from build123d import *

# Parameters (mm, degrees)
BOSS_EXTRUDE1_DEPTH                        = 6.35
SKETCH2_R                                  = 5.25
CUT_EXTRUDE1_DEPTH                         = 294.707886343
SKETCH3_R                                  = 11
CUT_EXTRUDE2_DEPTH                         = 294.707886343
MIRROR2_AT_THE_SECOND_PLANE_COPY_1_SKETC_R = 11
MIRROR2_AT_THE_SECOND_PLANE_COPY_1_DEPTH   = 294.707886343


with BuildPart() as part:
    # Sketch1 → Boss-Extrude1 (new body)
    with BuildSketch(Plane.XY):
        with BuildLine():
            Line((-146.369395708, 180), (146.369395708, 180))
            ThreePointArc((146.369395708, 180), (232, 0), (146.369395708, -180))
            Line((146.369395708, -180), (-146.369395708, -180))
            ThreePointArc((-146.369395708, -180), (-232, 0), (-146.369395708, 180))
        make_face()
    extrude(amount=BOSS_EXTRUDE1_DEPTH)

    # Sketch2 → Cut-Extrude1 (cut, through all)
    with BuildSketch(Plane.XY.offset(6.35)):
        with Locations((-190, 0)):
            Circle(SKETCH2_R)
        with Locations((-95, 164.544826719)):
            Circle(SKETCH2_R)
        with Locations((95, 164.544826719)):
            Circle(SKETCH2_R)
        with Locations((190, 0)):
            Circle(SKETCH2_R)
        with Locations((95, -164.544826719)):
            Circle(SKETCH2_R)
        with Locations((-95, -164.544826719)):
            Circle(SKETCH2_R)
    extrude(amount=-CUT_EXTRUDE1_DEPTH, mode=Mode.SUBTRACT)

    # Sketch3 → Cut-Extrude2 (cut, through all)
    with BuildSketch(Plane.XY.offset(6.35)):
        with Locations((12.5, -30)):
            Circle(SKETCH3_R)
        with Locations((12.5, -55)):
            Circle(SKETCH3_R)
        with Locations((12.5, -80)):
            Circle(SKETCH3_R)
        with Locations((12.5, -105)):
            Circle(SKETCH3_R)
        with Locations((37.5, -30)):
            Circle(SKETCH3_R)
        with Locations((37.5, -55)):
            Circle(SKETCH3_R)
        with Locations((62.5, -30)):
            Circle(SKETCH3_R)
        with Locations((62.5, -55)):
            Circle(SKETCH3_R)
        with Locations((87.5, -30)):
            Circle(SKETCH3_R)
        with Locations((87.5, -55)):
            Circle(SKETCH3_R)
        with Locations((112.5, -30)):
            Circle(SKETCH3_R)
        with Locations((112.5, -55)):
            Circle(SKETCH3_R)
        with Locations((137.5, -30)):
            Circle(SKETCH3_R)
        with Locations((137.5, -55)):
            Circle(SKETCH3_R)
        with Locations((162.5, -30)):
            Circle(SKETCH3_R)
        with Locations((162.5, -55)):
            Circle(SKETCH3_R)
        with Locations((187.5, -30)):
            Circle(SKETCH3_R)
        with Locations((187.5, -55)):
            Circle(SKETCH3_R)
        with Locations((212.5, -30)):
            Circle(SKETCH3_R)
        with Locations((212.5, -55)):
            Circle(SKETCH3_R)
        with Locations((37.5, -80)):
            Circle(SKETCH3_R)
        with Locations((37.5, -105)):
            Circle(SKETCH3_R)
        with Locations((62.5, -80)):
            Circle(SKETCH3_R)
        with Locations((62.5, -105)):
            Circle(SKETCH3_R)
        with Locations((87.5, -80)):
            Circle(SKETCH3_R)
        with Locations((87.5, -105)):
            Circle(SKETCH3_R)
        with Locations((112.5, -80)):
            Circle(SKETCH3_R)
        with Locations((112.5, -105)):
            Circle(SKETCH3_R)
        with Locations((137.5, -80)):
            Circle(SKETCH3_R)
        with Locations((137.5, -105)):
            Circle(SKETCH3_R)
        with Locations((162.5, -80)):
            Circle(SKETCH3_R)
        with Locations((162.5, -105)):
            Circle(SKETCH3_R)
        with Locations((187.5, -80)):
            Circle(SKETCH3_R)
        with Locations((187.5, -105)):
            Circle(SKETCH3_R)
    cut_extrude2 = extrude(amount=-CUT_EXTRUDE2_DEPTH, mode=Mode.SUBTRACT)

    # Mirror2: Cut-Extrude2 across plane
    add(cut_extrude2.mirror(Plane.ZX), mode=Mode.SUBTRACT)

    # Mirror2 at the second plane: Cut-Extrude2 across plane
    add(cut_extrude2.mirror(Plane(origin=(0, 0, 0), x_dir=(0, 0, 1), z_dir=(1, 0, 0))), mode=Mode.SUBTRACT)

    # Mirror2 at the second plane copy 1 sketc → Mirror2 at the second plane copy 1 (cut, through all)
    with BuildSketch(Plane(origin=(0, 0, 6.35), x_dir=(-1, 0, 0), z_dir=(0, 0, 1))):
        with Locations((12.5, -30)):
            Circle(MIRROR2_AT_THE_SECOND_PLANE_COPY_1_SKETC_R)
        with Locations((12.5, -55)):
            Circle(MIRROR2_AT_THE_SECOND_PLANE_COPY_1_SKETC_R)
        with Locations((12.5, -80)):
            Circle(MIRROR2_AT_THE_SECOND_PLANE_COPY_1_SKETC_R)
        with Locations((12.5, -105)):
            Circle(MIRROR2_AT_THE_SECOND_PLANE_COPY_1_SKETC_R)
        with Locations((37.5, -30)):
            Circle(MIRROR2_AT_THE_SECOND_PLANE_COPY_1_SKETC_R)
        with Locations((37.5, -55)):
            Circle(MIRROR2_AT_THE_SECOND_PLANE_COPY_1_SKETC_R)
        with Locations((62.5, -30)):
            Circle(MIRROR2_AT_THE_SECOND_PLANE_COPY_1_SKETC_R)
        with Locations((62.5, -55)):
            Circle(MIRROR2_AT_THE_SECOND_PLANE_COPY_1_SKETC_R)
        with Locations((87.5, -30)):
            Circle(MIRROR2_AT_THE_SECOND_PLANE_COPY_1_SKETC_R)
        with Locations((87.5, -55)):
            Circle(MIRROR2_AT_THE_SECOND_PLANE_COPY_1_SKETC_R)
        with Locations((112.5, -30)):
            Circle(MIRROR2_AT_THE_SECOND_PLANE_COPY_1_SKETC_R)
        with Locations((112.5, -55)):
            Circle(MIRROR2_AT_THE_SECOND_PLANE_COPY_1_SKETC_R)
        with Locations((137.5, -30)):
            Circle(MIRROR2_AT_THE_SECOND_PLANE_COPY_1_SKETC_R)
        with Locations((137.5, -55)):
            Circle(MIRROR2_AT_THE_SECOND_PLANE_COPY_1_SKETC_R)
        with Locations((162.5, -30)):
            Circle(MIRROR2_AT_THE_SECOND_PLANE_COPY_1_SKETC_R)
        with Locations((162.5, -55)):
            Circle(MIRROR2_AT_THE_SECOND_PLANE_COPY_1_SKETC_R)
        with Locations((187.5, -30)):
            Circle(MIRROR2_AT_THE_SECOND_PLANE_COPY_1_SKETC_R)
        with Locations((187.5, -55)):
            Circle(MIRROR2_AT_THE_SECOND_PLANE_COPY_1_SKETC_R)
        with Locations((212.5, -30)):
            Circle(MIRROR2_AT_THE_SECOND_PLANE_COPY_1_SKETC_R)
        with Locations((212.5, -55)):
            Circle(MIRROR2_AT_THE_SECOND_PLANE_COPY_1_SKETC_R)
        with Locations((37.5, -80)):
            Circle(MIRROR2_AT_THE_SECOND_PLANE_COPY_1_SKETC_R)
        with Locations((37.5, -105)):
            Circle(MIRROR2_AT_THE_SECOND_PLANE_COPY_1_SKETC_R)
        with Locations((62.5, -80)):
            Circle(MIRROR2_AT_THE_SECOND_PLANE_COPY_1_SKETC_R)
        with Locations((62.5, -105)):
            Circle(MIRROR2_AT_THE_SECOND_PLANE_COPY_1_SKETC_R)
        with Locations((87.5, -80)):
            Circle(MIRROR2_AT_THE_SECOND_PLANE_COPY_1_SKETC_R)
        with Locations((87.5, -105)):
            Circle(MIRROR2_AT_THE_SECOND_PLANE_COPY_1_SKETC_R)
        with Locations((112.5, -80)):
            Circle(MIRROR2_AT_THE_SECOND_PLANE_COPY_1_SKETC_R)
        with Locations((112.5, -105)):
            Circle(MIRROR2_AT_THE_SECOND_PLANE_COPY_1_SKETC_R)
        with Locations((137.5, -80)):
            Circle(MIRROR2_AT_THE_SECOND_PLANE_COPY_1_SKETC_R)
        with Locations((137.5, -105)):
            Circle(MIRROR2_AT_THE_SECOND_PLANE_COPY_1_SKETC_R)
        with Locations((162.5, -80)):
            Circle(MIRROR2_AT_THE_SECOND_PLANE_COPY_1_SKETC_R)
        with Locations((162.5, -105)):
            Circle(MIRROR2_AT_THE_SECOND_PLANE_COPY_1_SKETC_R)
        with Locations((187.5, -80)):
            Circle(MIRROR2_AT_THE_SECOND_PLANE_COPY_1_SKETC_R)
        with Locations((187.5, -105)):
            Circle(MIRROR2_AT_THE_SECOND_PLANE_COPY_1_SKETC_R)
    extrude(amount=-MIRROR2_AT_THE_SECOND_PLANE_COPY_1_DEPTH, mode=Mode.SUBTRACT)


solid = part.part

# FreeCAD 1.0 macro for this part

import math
import FreeCAD as App
import Part
import Sketcher
from FreeCAD import Vector
Q = App.Units.Quantity

doc = App.newDocument("Part")
body = doc.addObject("PartDesign::Body", "Body")

# Sketch on XY plane
sketch1 = body.newObject("Sketcher::SketchObject", "Sketch")
sketch1.AttachmentSupport = (doc.getObject("XY_Plane"), [""])
sketch1.MapMode = "FlatFace"
sketch1.addGeometry([
    Part.LineSegment(Vector(146, 180, 0), Vector(-146, 180, 0)),
    Part.ArcOfCircle(Part.Circle(Vector(0, 0, 0), Vector(0, 0, 1), 232), math.radians(129), math.radians(231)),
    Part.LineSegment(Vector(-146, -180, 0), Vector(146, -180, 0)),
    Part.ArcOfCircle(Part.Circle(Vector(0, 0, 0), Vector(0, 0, 1), 232), math.radians(-51), math.radians(51)),
], False)
sketch1.addConstraint([
    Sketcher.Constraint("Coincident", 0, 2, 1, 1),
    Sketcher.Constraint("Coincident", 1, 2, 2, 1),
    Sketcher.Constraint("Coincident", 2, 2, 3, 1),
    Sketcher.Constraint("Coincident", 3, 2, 0, 1),
    Sketcher.Constraint("Horizontal", 0),
    Sketcher.Constraint("Horizontal", 2),
    Sketcher.Constraint("Coincident", 1, 3, -1, 1),
    Sketcher.Constraint("Coincident", 3, 3, -1, 1),
    Sketcher.Constraint("Equal", 1, 3),
    Sketcher.Constraint("Vertical", 0, 2, 1, 2),
    Sketcher.Constraint("Radius", 1, Q("232 mm")),
    Sketcher.Constraint("DistanceY", -1, 1, 0, 2, Q("180 mm")),
])
pad1 = body.newObject("PartDesign::Pad", "Pad")
pad1.Profile = sketch1
pad1.Length = 6.35

# Sketch on XY plane
sketch2 = body.newObject("Sketcher::SketchObject", "Sketch001")
sketch2.AttachmentSupport = (doc.getObject("XY_Plane"), [""])
sketch2.MapMode = "FlatFace"
sketch2.AttachmentOffset = App.Placement(Vector(0, 0, 6.35), App.Rotation())
sketch2.addGeometry([
    Part.Circle(Vector(-190, 0, 0), Vector(0, 0, 1), 5),  # 0
    Part.Circle(Vector(-95, 165, 0), Vector(0, 0, 1), 5),  # 1
    Part.Circle(Vector(95, 165, 0), Vector(0, 0, 1), 5),  # 2
    Part.Circle(Vector(190, 0, 0), Vector(0, 0, 1), 5),  # 3
    Part.Circle(Vector(95, -165, 0), Vector(0, 0, 1), 5),  # 4
    Part.Circle(Vector(-95, -165, 0), Vector(0, 0, 1), 5),  # 5
], False)
sketch2.addConstraint([
    Sketcher.Constraint("Equal", 0, 1),
    Sketcher.Constraint("Equal", 1, 2),
    Sketcher.Constraint("Equal", 2, 3),
    Sketcher.Constraint("Equal", 3, 4),
    Sketcher.Constraint("Equal", 4, 5),
    Sketcher.Constraint("Symmetric", 0, 3, 3, 3, -1, 1),
    Sketcher.Constraint("Symmetric", 1, 3, 4, 3, -1, 1),
    Sketcher.Constraint("Symmetric", 2, 3, 5, 3, -1, 1),
    Sketcher.Constraint("Symmetric", 1, 3, 2, 3, -2),
    Sketcher.Constraint("PointOnObject", 0, 3, -1),
    Sketcher.Constraint("Diameter", 0, Q("10.5 mm")),
    Sketcher.Constraint("DistanceX", 0, 3, -1, 1, Q("190 mm")),
    Sketcher.Constraint("DistanceX", 1, 3, -1, 1, Q("95 mm")),
    Sketcher.Constraint("DistanceY", -1, 1, 1, 3, Q("164.544827 mm")),
])
pocket1 = body.newObject("PartDesign::Pocket", "Pocket")
pocket1.Profile = sketch2
pocket1.Type = "ThroughAll"

# Sketch on XY plane
sketch3 = body.newObject("Sketcher::SketchObject", "Sketch002")
sketch3.AttachmentSupport = (doc.getObject("XY_Plane"), [""])
sketch3.MapMode = "FlatFace"
sketch3.AttachmentOffset = App.Placement(Vector(0, 0, 6.35), App.Rotation())
sketch3.addGeometry([
    Part.Circle(Vector(12, -30, 0), Vector(0, 0, 1), 11),  # 0
    Part.Circle(Vector(12, -55, 0), Vector(0, 0, 1), 11),  # 1
    Part.Circle(Vector(12, -80, 0), Vector(0, 0, 1), 11),  # 2
    Part.Circle(Vector(12, -105, 0), Vector(0, 0, 1), 11),  # 3
    Part.Circle(Vector(38, -30, 0), Vector(0, 0, 1), 11),  # 4
    Part.Circle(Vector(38, -55, 0), Vector(0, 0, 1), 11),  # 5
    Part.Circle(Vector(62, -30, 0), Vector(0, 0, 1), 11),  # 6
    Part.Circle(Vector(62, -55, 0), Vector(0, 0, 1), 11),  # 7
    Part.Circle(Vector(88, -30, 0), Vector(0, 0, 1), 11),  # 8
    Part.Circle(Vector(88, -55, 0), Vector(0, 0, 1), 11),  # 9
    Part.Circle(Vector(112, -30, 0), Vector(0, 0, 1), 11),  # 10
    Part.Circle(Vector(112, -55, 0), Vector(0, 0, 1), 11),  # 11
    Part.Circle(Vector(138, -30, 0), Vector(0, 0, 1), 11),  # 12
    Part.Circle(Vector(138, -55, 0), Vector(0, 0, 1), 11),  # 13
    Part.Circle(Vector(162, -30, 0), Vector(0, 0, 1), 11),  # 14
    Part.Circle(Vector(162, -55, 0), Vector(0, 0, 1), 11),  # 15
    Part.Circle(Vector(188, -30, 0), Vector(0, 0, 1), 11),  # 16
    Part.Circle(Vector(188, -55, 0), Vector(0, 0, 1), 11),  # 17
    Part.Circle(Vector(212, -30, 0), Vector(0, 0, 1), 11),  # 18
    Part.Circle(Vector(212, -55, 0), Vector(0, 0, 1), 11),  # 19
    Part.Circle(Vector(38, -80, 0), Vector(0, 0, 1), 11),  # 20
    Part.Circle(Vector(38, -105, 0), Vector(0, 0, 1), 11),  # 21
    Part.Circle(Vector(62, -80, 0), Vector(0, 0, 1), 11),  # 22
    Part.Circle(Vector(62, -105, 0), Vector(0, 0, 1), 11),  # 23
    Part.Circle(Vector(88, -80, 0), Vector(0, 0, 1), 11),  # 24
    Part.Circle(Vector(88, -105, 0), Vector(0, 0, 1), 11),  # 25
    Part.Circle(Vector(112, -80, 0), Vector(0, 0, 1), 11),  # 26
    Part.Circle(Vector(112, -105, 0), Vector(0, 0, 1), 11),  # 27
    Part.Circle(Vector(138, -80, 0), Vector(0, 0, 1), 11),  # 28
    Part.Circle(Vector(138, -105, 0), Vector(0, 0, 1), 11),  # 29
    Part.Circle(Vector(162, -80, 0), Vector(0, 0, 1), 11),  # 30
    Part.Circle(Vector(162, -105, 0), Vector(0, 0, 1), 11),  # 31
    Part.Circle(Vector(188, -80, 0), Vector(0, 0, 1), 11),  # 32
    Part.Circle(Vector(188, -105, 0), Vector(0, 0, 1), 11),  # 33
], False)
sketch3.addConstraint([
    Sketcher.Constraint("Equal", 0, 1),
    Sketcher.Constraint("Equal", 1, 2),
    Sketcher.Constraint("Equal", 2, 3),
    Sketcher.Constraint("Equal", 3, 4),
    Sketcher.Constraint("Equal", 4, 5),
    Sketcher.Constraint("Equal", 5, 6),
    Sketcher.Constraint("Equal", 6, 7),
    Sketcher.Constraint("Equal", 7, 8),
    Sketcher.Constraint("Equal", 8, 9),
    Sketcher.Constraint("Equal", 9, 10),
    Sketcher.Constraint("Equal", 10, 11),
    Sketcher.Constraint("Equal", 11, 12),
    Sketcher.Constraint("Equal", 12, 13),
    Sketcher.Constraint("Equal", 13, 14),
    Sketcher.Constraint("Equal", 14, 15),
    Sketcher.Constraint("Equal", 15, 16),
    Sketcher.Constraint("Equal", 16, 17),
    Sketcher.Constraint("Equal", 17, 18),
    Sketcher.Constraint("Equal", 18, 19),
    Sketcher.Constraint("Equal", 19, 20),
    Sketcher.Constraint("Equal", 20, 21),
    Sketcher.Constraint("Equal", 21, 22),
    Sketcher.Constraint("Equal", 22, 23),
    Sketcher.Constraint("Equal", 23, 24),
    Sketcher.Constraint("Equal", 24, 25),
    Sketcher.Constraint("Equal", 25, 26),
    Sketcher.Constraint("Equal", 26, 27),
    Sketcher.Constraint("Equal", 27, 28),
    Sketcher.Constraint("Equal", 28, 29),
    Sketcher.Constraint("Equal", 29, 30),
    Sketcher.Constraint("Equal", 30, 31),
    Sketcher.Constraint("Equal", 31, 32),
    Sketcher.Constraint("Equal", 32, 33),
    Sketcher.Constraint("Horizontal", 0, 3, 4, 3),
    Sketcher.Constraint("Horizontal", 1, 3, 5, 3),
    Sketcher.Constraint("Horizontal", 4, 3, 6, 3),
    Sketcher.Constraint("Horizontal", 5, 3, 7, 3),
    Sketcher.Constraint("Horizontal", 6, 3, 8, 3),
    Sketcher.Constraint("Horizontal", 7, 3, 9, 3),
    Sketcher.Constraint("Horizontal", 8, 3, 10, 3),
    Sketcher.Constraint("Horizontal", 9, 3, 11, 3),
    Sketcher.Constraint("Horizontal", 10, 3, 12, 3),
    Sketcher.Constraint("Horizontal", 11, 3, 13, 3),
    Sketcher.Constraint("Horizontal", 12, 3, 14, 3),
    Sketcher.Constraint("Horizontal", 13, 3, 15, 3),
    Sketcher.Constraint("Horizontal", 14, 3, 16, 3),
    Sketcher.Constraint("Horizontal", 15, 3, 17, 3),
    Sketcher.Constraint("Horizontal", 16, 3, 18, 3),
    Sketcher.Constraint("Horizontal", 17, 3, 19, 3),
    Sketcher.Constraint("Horizontal", 2, 3, 20, 3),
    Sketcher.Constraint("Horizontal", 3, 3, 21, 3),
    Sketcher.Constraint("Horizontal", 20, 3, 22, 3),
    Sketcher.Constraint("Horizontal", 21, 3, 23, 3),
    Sketcher.Constraint("Horizontal", 22, 3, 24, 3),
    Sketcher.Constraint("Horizontal", 23, 3, 25, 3),
    Sketcher.Constraint("Horizontal", 24, 3, 26, 3),
    Sketcher.Constraint("Horizontal", 25, 3, 27, 3),
    Sketcher.Constraint("Horizontal", 26, 3, 28, 3),
    Sketcher.Constraint("Horizontal", 27, 3, 29, 3),
    Sketcher.Constraint("Horizontal", 28, 3, 30, 3),
    Sketcher.Constraint("Horizontal", 29, 3, 31, 3),
    Sketcher.Constraint("Horizontal", 30, 3, 32, 3),
    Sketcher.Constraint("Horizontal", 31, 3, 33, 3),
    Sketcher.Constraint("Vertical", 0, 3, 1, 3),
    Sketcher.Constraint("Vertical", 1, 3, 2, 3),
    Sketcher.Constraint("Vertical", 2, 3, 3, 3),
    Sketcher.Constraint("Vertical", 4, 3, 5, 3),
    Sketcher.Constraint("Vertical", 6, 3, 7, 3),
    Sketcher.Constraint("Vertical", 8, 3, 9, 3),
    Sketcher.Constraint("Vertical", 10, 3, 11, 3),
    Sketcher.Constraint("Vertical", 12, 3, 13, 3),
    Sketcher.Constraint("Vertical", 14, 3, 15, 3),
    Sketcher.Constraint("Vertical", 16, 3, 17, 3),
    Sketcher.Constraint("Vertical", 18, 3, 19, 3),
    Sketcher.Constraint("Vertical", 5, 3, 20, 3),
    Sketcher.Constraint("Vertical", 20, 3, 21, 3),
    Sketcher.Constraint("Vertical", 7, 3, 22, 3),
    Sketcher.Constraint("Vertical", 22, 3, 23, 3),
    Sketcher.Constraint("Vertical", 9, 3, 24, 3),
    Sketcher.Constraint("Vertical", 24, 3, 25, 3),
    Sketcher.Constraint("Vertical", 11, 3, 26, 3),
    Sketcher.Constraint("Vertical", 26, 3, 27, 3),
    Sketcher.Constraint("Vertical", 13, 3, 28, 3),
    Sketcher.Constraint("Vertical", 28, 3, 29, 3),
    Sketcher.Constraint("Vertical", 15, 3, 30, 3),
    Sketcher.Constraint("Vertical", 30, 3, 31, 3),
    Sketcher.Constraint("Vertical", 17, 3, 32, 3),
    Sketcher.Constraint("Vertical", 32, 3, 33, 3),
    Sketcher.Constraint("Diameter", 0, Q("22 mm")),
    Sketcher.Constraint("DistanceY", 0, 3, -1, 1, Q("30 mm")),
    Sketcher.Constraint("DistanceY", 1, 3, -1, 1, Q("55 mm")),
    Sketcher.Constraint("DistanceY", 2, 3, -1, 1, Q("80 mm")),
    Sketcher.Constraint("DistanceY", 3, 3, -1, 1, Q("105 mm")),
    Sketcher.Constraint("DistanceX", 0, 3, 4, 3, Q("25 mm")),
    Sketcher.Constraint("DistanceX", 4, 3, 6, 3, Q("25 mm")),
    Sketcher.Constraint("DistanceX", 6, 3, 8, 3, Q("25 mm")),
    Sketcher.Constraint("DistanceX", 8, 3, 10, 3, Q("25 mm")),
    Sketcher.Constraint("DistanceX", 10, 3, 12, 3, Q("25 mm")),
    Sketcher.Constraint("DistanceX", 12, 3, 14, 3, Q("25 mm")),
    Sketcher.Constraint("DistanceX", 14, 3, 16, 3, Q("25 mm")),
    Sketcher.Constraint("DistanceX", 16, 3, 18, 3, Q("25 mm")),
    Sketcher.Constraint("DistanceX", -1, 1, 0, 3, Q("12.5 mm")),
])
pocket2 = body.newObject("PartDesign::Pocket", "Pocket001")
pocket2.Profile = sketch3
pocket2.Type = "ThroughAll"
doc.recompute()

mirrored = body.newObject("PartDesign::Mirrored", "Mirrored")
mirrored.Originals = [pocket2]
mirrored.MirrorPlane = (doc.getObject("XZ_Plane"), [""])
body.Tip = mirrored
doc.recompute()

mirrored2 = body.newObject("PartDesign::Mirrored", "Mirrored001")
mirrored2.Originals = [pocket2]
mirrored2.MirrorPlane = (doc.getObject("YZ_Plane"), [""])
body.Tip = mirrored2

# Sketch on XY plane
sketch4 = body.newObject("Sketcher::SketchObject", "Sketch003")
sketch4.AttachmentSupport = (doc.getObject("XY_Plane"), [""])
sketch4.MapMode = "FlatFace"
sketch4.AttachmentOffset = App.Placement(Vector(0, 0, 6.35), App.Rotation())
sketch4.addGeometry([
    Part.Circle(Vector(-12, 30, 0), Vector(0, 0, 1), 11),  # 0
    Part.Circle(Vector(-12, 55, 0), Vector(0, 0, 1), 11),  # 1
    Part.Circle(Vector(-12, 80, 0), Vector(0, 0, 1), 11),  # 2
    Part.Circle(Vector(-12, 105, 0), Vector(0, 0, 1), 11),  # 3
    Part.Circle(Vector(-38, 30, 0), Vector(0, 0, 1), 11),  # 4
    Part.Circle(Vector(-38, 55, 0), Vector(0, 0, 1), 11),  # 5
    Part.Circle(Vector(-62, 30, 0), Vector(0, 0, 1), 11),  # 6
    Part.Circle(Vector(-62, 55, 0), Vector(0, 0, 1), 11),  # 7
    Part.Circle(Vector(-88, 30, 0), Vector(0, 0, 1), 11),  # 8
    Part.Circle(Vector(-88, 55, 0), Vector(0, 0, 1), 11),  # 9
    Part.Circle(Vector(-112, 30, 0), Vector(0, 0, 1), 11),  # 10
    Part.Circle(Vector(-112, 55, 0), Vector(0, 0, 1), 11),  # 11
    Part.Circle(Vector(-138, 30, 0), Vector(0, 0, 1), 11),  # 12
    Part.Circle(Vector(-138, 55, 0), Vector(0, 0, 1), 11),  # 13
    Part.Circle(Vector(-162, 30, 0), Vector(0, 0, 1), 11),  # 14
    Part.Circle(Vector(-162, 55, 0), Vector(0, 0, 1), 11),  # 15
    Part.Circle(Vector(-188, 30, 0), Vector(0, 0, 1), 11),  # 16
    Part.Circle(Vector(-188, 55, 0), Vector(0, 0, 1), 11),  # 17
    Part.Circle(Vector(-212, 30, 0), Vector(0, 0, 1), 11),  # 18
    Part.Circle(Vector(-212, 55, 0), Vector(0, 0, 1), 11),  # 19
    Part.Circle(Vector(-38, 80, 0), Vector(0, 0, 1), 11),  # 20
    Part.Circle(Vector(-38, 105, 0), Vector(0, 0, 1), 11),  # 21
    Part.Circle(Vector(-62, 80, 0), Vector(0, 0, 1), 11),  # 22
    Part.Circle(Vector(-62, 105, 0), Vector(0, 0, 1), 11),  # 23
    Part.Circle(Vector(-88, 80, 0), Vector(0, 0, 1), 11),  # 24
    Part.Circle(Vector(-88, 105, 0), Vector(0, 0, 1), 11),  # 25
    Part.Circle(Vector(-112, 80, 0), Vector(0, 0, 1), 11),  # 26
    Part.Circle(Vector(-112, 105, 0), Vector(0, 0, 1), 11),  # 27
    Part.Circle(Vector(-138, 80, 0), Vector(0, 0, 1), 11),  # 28
    Part.Circle(Vector(-138, 105, 0), Vector(0, 0, 1), 11),  # 29
    Part.Circle(Vector(-162, 80, 0), Vector(0, 0, 1), 11),  # 30
    Part.Circle(Vector(-162, 105, 0), Vector(0, 0, 1), 11),  # 31
    Part.Circle(Vector(-188, 80, 0), Vector(0, 0, 1), 11),  # 32
    Part.Circle(Vector(-188, 105, 0), Vector(0, 0, 1), 11),  # 33
], False)
sketch4.addConstraint([
    Sketcher.Constraint("Equal", 0, 1),
    Sketcher.Constraint("Equal", 1, 2),
    Sketcher.Constraint("Equal", 2, 3),
    Sketcher.Constraint("Equal", 3, 4),
    Sketcher.Constraint("Equal", 4, 5),
    Sketcher.Constraint("Equal", 5, 6),
    Sketcher.Constraint("Equal", 6, 7),
    Sketcher.Constraint("Equal", 7, 8),
    Sketcher.Constraint("Equal", 8, 9),
    Sketcher.Constraint("Equal", 9, 10),
    Sketcher.Constraint("Equal", 10, 11),
    Sketcher.Constraint("Equal", 11, 12),
    Sketcher.Constraint("Equal", 12, 13),
    Sketcher.Constraint("Equal", 13, 14),
    Sketcher.Constraint("Equal", 14, 15),
    Sketcher.Constraint("Equal", 15, 16),
    Sketcher.Constraint("Equal", 16, 17),
    Sketcher.Constraint("Equal", 17, 18),
    Sketcher.Constraint("Equal", 18, 19),
    Sketcher.Constraint("Equal", 19, 20),
    Sketcher.Constraint("Equal", 20, 21),
    Sketcher.Constraint("Equal", 21, 22),
    Sketcher.Constraint("Equal", 22, 23),
    Sketcher.Constraint("Equal", 23, 24),
    Sketcher.Constraint("Equal", 24, 25),
    Sketcher.Constraint("Equal", 25, 26),
    Sketcher.Constraint("Equal", 26, 27),
    Sketcher.Constraint("Equal", 27, 28),
    Sketcher.Constraint("Equal", 28, 29),
    Sketcher.Constraint("Equal", 29, 30),
    Sketcher.Constraint("Equal", 30, 31),
    Sketcher.Constraint("Equal", 31, 32),
    Sketcher.Constraint("Equal", 32, 33),
    Sketcher.Constraint("Horizontal", 0, 3, 4, 3),
    Sketcher.Constraint("Horizontal", 1, 3, 5, 3),
    Sketcher.Constraint("Horizontal", 4, 3, 6, 3),
    Sketcher.Constraint("Horizontal", 5, 3, 7, 3),
    Sketcher.Constraint("Horizontal", 6, 3, 8, 3),
    Sketcher.Constraint("Horizontal", 7, 3, 9, 3),
    Sketcher.Constraint("Horizontal", 8, 3, 10, 3),
    Sketcher.Constraint("Horizontal", 9, 3, 11, 3),
    Sketcher.Constraint("Horizontal", 10, 3, 12, 3),
    Sketcher.Constraint("Horizontal", 11, 3, 13, 3),
    Sketcher.Constraint("Horizontal", 12, 3, 14, 3),
    Sketcher.Constraint("Horizontal", 13, 3, 15, 3),
    Sketcher.Constraint("Horizontal", 14, 3, 16, 3),
    Sketcher.Constraint("Horizontal", 15, 3, 17, 3),
    Sketcher.Constraint("Horizontal", 16, 3, 18, 3),
    Sketcher.Constraint("Horizontal", 17, 3, 19, 3),
    Sketcher.Constraint("Horizontal", 2, 3, 20, 3),
    Sketcher.Constraint("Horizontal", 3, 3, 21, 3),
    Sketcher.Constraint("Horizontal", 20, 3, 22, 3),
    Sketcher.Constraint("Horizontal", 21, 3, 23, 3),
    Sketcher.Constraint("Horizontal", 22, 3, 24, 3),
    Sketcher.Constraint("Horizontal", 23, 3, 25, 3),
    Sketcher.Constraint("Horizontal", 24, 3, 26, 3),
    Sketcher.Constraint("Horizontal", 25, 3, 27, 3),
    Sketcher.Constraint("Horizontal", 26, 3, 28, 3),
    Sketcher.Constraint("Horizontal", 27, 3, 29, 3),
    Sketcher.Constraint("Horizontal", 28, 3, 30, 3),
    Sketcher.Constraint("Horizontal", 29, 3, 31, 3),
    Sketcher.Constraint("Horizontal", 30, 3, 32, 3),
    Sketcher.Constraint("Horizontal", 31, 3, 33, 3),
    Sketcher.Constraint("Vertical", 0, 3, 1, 3),
    Sketcher.Constraint("Vertical", 1, 3, 2, 3),
    Sketcher.Constraint("Vertical", 2, 3, 3, 3),
    Sketcher.Constraint("Vertical", 4, 3, 5, 3),
    Sketcher.Constraint("Vertical", 6, 3, 7, 3),
    Sketcher.Constraint("Vertical", 8, 3, 9, 3),
    Sketcher.Constraint("Vertical", 10, 3, 11, 3),
    Sketcher.Constraint("Vertical", 12, 3, 13, 3),
    Sketcher.Constraint("Vertical", 14, 3, 15, 3),
    Sketcher.Constraint("Vertical", 16, 3, 17, 3),
    Sketcher.Constraint("Vertical", 18, 3, 19, 3),
    Sketcher.Constraint("Vertical", 5, 3, 20, 3),
    Sketcher.Constraint("Vertical", 20, 3, 21, 3),
    Sketcher.Constraint("Vertical", 7, 3, 22, 3),
    Sketcher.Constraint("Vertical", 22, 3, 23, 3),
    Sketcher.Constraint("Vertical", 9, 3, 24, 3),
    Sketcher.Constraint("Vertical", 24, 3, 25, 3),
    Sketcher.Constraint("Vertical", 11, 3, 26, 3),
    Sketcher.Constraint("Vertical", 26, 3, 27, 3),
    Sketcher.Constraint("Vertical", 13, 3, 28, 3),
    Sketcher.Constraint("Vertical", 28, 3, 29, 3),
    Sketcher.Constraint("Vertical", 15, 3, 30, 3),
    Sketcher.Constraint("Vertical", 30, 3, 31, 3),
    Sketcher.Constraint("Vertical", 17, 3, 32, 3),
    Sketcher.Constraint("Vertical", 32, 3, 33, 3),
    Sketcher.Constraint("Diameter", 0, Q("22 mm")),
    Sketcher.Constraint("DistanceY", -1, 1, 0, 3, Q("30 mm")),
    Sketcher.Constraint("DistanceY", -1, 1, 1, 3, Q("55 mm")),
    Sketcher.Constraint("DistanceY", -1, 1, 2, 3, Q("80 mm")),
    Sketcher.Constraint("DistanceY", -1, 1, 3, 3, Q("105 mm")),
    Sketcher.Constraint("DistanceX", 4, 3, 0, 3, Q("25 mm")),
    Sketcher.Constraint("DistanceX", 6, 3, 4, 3, Q("25 mm")),
    Sketcher.Constraint("DistanceX", 8, 3, 6, 3, Q("25 mm")),
    Sketcher.Constraint("DistanceX", 10, 3, 8, 3, Q("25 mm")),
    Sketcher.Constraint("DistanceX", 12, 3, 10, 3, Q("25 mm")),
    Sketcher.Constraint("DistanceX", 14, 3, 12, 3, Q("25 mm")),
    Sketcher.Constraint("DistanceX", 16, 3, 14, 3, Q("25 mm")),
    Sketcher.Constraint("DistanceX", 18, 3, 16, 3, Q("25 mm")),
    Sketcher.Constraint("DistanceX", 0, 3, -1, 1, Q("12.5 mm")),
])
pocket3 = body.newObject("PartDesign::Pocket", "Pocket002")
pocket3.Profile = sketch4
pocket3.Type = "ThroughAll"

doc.recompute()
